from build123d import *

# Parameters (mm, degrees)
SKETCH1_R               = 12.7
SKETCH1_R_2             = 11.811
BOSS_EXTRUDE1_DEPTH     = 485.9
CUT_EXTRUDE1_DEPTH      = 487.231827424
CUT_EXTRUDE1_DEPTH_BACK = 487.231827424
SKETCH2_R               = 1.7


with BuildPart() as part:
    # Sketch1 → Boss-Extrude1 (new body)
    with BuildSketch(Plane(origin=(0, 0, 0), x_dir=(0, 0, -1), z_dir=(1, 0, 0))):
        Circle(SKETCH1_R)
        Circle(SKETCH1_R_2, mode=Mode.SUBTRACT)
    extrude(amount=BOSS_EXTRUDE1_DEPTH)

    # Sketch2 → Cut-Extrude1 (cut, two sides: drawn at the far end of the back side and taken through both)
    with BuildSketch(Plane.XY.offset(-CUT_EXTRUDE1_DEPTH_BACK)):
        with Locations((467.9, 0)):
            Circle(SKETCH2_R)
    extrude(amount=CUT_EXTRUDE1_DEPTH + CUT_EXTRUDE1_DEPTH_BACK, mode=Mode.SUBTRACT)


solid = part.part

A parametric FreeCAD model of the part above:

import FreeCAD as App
import Part
import Sketcher

doc = App.newDocument("Part")
body = doc.addObject("PartDesign::Body", "Body")

# Sketch on YZ plane
sketch1 = doc.addObject("Sketcher::SketchObject", "Sketch")
body.addObject(sketch1)
sketch1.AttachmentSupport = (doc.YZ_Plane, [""])
sketch1.MapMode = "FlatFace"
sketch1.addGeometry(Part.Circle(App.Vector(0, 0, 0), App.Vector(0, 0, 1), 12.7), False)
sketch1.addGeometry(Part.Circle(App.Vector(0, 0, 0), App.Vector(0, 0, 1), 11.811), False)
sketch1.addConstraint(Sketcher.Constraint("Coincident", 0, 3, -1, 1))
sketch1.addConstraint(Sketcher.Constraint("Coincident", 1, 3, -1, 1))
sketch1.addConstraint(Sketcher.Constraint("Diameter", 0, 25.4))
sketch1.addConstraint(Sketcher.Constraint("Diameter", 1, 23.622))
pad1 = doc.addObject("PartDesign::Pad", "Pad")
body.addObject(pad1)
pad1.Profile = sketch1
pad1.Length = 485.9

# Sketch on XY plane
sketch2 = doc.addObject("Sketcher::SketchObject", "Sketch001")
body.addObject(sketch2)
sketch2.AttachmentSupport = (doc.XY_Plane, [""])
sketch2.MapMode = "FlatFace"
sketch2.addGeometry(Part.Circle(App.Vector(467.9, 0, 0), App.Vector(0, 0, 1), 1.7), False)
sketch2.addConstraint(Sketcher.Constraint("PointOnObject", 0, 3, -1))
sketch2.addConstraint(Sketcher.Constraint("Diameter", 0, 3.4))
sketch2.addConstraint(Sketcher.Constraint("DistanceX", -1, 1, 0, 3, 467.9))
pocket1 = doc.addObject("PartDesign::Pocket", "Pocket")
body.addObject(pocket1)
pocket1.Profile = sketch2
pocket1.Type = "ThroughAll"
pocket1.Midplane = True

doc.recompute()
